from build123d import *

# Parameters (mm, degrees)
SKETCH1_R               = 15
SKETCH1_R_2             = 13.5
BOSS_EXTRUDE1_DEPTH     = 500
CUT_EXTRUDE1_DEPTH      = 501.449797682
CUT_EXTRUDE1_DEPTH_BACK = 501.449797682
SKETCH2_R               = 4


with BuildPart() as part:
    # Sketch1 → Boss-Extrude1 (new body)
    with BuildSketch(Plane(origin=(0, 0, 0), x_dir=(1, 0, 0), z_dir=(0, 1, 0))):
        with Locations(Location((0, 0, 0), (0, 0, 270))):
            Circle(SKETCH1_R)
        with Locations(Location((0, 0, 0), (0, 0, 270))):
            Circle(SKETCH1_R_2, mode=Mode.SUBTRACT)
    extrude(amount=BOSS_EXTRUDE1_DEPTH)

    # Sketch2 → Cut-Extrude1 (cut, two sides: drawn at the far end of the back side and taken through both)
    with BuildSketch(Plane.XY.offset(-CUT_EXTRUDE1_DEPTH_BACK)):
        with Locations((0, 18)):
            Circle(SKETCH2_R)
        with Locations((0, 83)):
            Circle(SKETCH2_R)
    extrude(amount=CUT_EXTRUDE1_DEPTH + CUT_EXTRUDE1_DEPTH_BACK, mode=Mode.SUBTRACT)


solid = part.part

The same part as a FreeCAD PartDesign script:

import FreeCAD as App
import Part
import Sketcher
from FreeCAD import Vector

doc = App.newDocument("Part")
body = doc.addObject("PartDesign::Body", "Body")

# Sketch on XZ plane
sketch1 = body.newObject("Sketcher::SketchObject", "Sketch")
sketch1.AttachmentSupport = (doc.getObject("XZ_Plane"), [""])
sketch1.MapMode = "FlatFace"
sketch1.addGeometry([
    Part.Circle(Vector(0, 0, 0), Vector(0, 0, 1), 15),
    Part.Circle(Vector(0, 0, 0), Vector(0, 0, 1), 14),
], False)
sketch1.addConstraint([
    Sketcher.Constraint("Coincident", 0, 3, -1, 1),
    Sketcher.Constraint("Coincident", 1, 3, -1, 1),
    Sketcher.Constraint("Diameter", 0, 30.0),
    Sketcher.Constraint("Diameter", 1, 27.0),
])
pad1 = body.newObject("PartDesign::Pad", "Pad")
pad1.Profile = sketch1
pad1.Length = 500
pad1.Reversed = True

# Sketch on XY plane
sketch2 = body.newObject("Sketcher::SketchObject", "Sketch001")
sketch2.AttachmentSupport = (doc.getObject("XY_Plane"), [""])
sketch2.MapMode = "FlatFace"
sketch2.addGeometry([
    Part.Circle(Vector(0, 18, 0), Vector(0, 0, 1), 4),
    Part.Circle(Vector(0, 83, 0), Vector(0, 0, 1), 4),
], False)
sketch2.addConstraint([
    Sketcher.Constraint("Equal", 0, 1),
    Sketcher.Constraint("PointOnObject", 0, 3, -2),
    Sketcher.Constraint("PointOnObject", 1, 3, -2),
    Sketcher.Constraint("Diameter", 0, 8.0),
    Sketcher.Constraint("DistanceY", -1, 1, 0, 3, 18.0),
    Sketcher.Constraint("DistanceY", -1, 1, 1, 3, 83.0),
])
pocket1 = body.newObject("PartDesign::Pocket", "Pocket")
pocket1.Profile = sketch2
pocket1.Type = "ThroughAll"
pocket1.Midplane = True

doc.recompute()
